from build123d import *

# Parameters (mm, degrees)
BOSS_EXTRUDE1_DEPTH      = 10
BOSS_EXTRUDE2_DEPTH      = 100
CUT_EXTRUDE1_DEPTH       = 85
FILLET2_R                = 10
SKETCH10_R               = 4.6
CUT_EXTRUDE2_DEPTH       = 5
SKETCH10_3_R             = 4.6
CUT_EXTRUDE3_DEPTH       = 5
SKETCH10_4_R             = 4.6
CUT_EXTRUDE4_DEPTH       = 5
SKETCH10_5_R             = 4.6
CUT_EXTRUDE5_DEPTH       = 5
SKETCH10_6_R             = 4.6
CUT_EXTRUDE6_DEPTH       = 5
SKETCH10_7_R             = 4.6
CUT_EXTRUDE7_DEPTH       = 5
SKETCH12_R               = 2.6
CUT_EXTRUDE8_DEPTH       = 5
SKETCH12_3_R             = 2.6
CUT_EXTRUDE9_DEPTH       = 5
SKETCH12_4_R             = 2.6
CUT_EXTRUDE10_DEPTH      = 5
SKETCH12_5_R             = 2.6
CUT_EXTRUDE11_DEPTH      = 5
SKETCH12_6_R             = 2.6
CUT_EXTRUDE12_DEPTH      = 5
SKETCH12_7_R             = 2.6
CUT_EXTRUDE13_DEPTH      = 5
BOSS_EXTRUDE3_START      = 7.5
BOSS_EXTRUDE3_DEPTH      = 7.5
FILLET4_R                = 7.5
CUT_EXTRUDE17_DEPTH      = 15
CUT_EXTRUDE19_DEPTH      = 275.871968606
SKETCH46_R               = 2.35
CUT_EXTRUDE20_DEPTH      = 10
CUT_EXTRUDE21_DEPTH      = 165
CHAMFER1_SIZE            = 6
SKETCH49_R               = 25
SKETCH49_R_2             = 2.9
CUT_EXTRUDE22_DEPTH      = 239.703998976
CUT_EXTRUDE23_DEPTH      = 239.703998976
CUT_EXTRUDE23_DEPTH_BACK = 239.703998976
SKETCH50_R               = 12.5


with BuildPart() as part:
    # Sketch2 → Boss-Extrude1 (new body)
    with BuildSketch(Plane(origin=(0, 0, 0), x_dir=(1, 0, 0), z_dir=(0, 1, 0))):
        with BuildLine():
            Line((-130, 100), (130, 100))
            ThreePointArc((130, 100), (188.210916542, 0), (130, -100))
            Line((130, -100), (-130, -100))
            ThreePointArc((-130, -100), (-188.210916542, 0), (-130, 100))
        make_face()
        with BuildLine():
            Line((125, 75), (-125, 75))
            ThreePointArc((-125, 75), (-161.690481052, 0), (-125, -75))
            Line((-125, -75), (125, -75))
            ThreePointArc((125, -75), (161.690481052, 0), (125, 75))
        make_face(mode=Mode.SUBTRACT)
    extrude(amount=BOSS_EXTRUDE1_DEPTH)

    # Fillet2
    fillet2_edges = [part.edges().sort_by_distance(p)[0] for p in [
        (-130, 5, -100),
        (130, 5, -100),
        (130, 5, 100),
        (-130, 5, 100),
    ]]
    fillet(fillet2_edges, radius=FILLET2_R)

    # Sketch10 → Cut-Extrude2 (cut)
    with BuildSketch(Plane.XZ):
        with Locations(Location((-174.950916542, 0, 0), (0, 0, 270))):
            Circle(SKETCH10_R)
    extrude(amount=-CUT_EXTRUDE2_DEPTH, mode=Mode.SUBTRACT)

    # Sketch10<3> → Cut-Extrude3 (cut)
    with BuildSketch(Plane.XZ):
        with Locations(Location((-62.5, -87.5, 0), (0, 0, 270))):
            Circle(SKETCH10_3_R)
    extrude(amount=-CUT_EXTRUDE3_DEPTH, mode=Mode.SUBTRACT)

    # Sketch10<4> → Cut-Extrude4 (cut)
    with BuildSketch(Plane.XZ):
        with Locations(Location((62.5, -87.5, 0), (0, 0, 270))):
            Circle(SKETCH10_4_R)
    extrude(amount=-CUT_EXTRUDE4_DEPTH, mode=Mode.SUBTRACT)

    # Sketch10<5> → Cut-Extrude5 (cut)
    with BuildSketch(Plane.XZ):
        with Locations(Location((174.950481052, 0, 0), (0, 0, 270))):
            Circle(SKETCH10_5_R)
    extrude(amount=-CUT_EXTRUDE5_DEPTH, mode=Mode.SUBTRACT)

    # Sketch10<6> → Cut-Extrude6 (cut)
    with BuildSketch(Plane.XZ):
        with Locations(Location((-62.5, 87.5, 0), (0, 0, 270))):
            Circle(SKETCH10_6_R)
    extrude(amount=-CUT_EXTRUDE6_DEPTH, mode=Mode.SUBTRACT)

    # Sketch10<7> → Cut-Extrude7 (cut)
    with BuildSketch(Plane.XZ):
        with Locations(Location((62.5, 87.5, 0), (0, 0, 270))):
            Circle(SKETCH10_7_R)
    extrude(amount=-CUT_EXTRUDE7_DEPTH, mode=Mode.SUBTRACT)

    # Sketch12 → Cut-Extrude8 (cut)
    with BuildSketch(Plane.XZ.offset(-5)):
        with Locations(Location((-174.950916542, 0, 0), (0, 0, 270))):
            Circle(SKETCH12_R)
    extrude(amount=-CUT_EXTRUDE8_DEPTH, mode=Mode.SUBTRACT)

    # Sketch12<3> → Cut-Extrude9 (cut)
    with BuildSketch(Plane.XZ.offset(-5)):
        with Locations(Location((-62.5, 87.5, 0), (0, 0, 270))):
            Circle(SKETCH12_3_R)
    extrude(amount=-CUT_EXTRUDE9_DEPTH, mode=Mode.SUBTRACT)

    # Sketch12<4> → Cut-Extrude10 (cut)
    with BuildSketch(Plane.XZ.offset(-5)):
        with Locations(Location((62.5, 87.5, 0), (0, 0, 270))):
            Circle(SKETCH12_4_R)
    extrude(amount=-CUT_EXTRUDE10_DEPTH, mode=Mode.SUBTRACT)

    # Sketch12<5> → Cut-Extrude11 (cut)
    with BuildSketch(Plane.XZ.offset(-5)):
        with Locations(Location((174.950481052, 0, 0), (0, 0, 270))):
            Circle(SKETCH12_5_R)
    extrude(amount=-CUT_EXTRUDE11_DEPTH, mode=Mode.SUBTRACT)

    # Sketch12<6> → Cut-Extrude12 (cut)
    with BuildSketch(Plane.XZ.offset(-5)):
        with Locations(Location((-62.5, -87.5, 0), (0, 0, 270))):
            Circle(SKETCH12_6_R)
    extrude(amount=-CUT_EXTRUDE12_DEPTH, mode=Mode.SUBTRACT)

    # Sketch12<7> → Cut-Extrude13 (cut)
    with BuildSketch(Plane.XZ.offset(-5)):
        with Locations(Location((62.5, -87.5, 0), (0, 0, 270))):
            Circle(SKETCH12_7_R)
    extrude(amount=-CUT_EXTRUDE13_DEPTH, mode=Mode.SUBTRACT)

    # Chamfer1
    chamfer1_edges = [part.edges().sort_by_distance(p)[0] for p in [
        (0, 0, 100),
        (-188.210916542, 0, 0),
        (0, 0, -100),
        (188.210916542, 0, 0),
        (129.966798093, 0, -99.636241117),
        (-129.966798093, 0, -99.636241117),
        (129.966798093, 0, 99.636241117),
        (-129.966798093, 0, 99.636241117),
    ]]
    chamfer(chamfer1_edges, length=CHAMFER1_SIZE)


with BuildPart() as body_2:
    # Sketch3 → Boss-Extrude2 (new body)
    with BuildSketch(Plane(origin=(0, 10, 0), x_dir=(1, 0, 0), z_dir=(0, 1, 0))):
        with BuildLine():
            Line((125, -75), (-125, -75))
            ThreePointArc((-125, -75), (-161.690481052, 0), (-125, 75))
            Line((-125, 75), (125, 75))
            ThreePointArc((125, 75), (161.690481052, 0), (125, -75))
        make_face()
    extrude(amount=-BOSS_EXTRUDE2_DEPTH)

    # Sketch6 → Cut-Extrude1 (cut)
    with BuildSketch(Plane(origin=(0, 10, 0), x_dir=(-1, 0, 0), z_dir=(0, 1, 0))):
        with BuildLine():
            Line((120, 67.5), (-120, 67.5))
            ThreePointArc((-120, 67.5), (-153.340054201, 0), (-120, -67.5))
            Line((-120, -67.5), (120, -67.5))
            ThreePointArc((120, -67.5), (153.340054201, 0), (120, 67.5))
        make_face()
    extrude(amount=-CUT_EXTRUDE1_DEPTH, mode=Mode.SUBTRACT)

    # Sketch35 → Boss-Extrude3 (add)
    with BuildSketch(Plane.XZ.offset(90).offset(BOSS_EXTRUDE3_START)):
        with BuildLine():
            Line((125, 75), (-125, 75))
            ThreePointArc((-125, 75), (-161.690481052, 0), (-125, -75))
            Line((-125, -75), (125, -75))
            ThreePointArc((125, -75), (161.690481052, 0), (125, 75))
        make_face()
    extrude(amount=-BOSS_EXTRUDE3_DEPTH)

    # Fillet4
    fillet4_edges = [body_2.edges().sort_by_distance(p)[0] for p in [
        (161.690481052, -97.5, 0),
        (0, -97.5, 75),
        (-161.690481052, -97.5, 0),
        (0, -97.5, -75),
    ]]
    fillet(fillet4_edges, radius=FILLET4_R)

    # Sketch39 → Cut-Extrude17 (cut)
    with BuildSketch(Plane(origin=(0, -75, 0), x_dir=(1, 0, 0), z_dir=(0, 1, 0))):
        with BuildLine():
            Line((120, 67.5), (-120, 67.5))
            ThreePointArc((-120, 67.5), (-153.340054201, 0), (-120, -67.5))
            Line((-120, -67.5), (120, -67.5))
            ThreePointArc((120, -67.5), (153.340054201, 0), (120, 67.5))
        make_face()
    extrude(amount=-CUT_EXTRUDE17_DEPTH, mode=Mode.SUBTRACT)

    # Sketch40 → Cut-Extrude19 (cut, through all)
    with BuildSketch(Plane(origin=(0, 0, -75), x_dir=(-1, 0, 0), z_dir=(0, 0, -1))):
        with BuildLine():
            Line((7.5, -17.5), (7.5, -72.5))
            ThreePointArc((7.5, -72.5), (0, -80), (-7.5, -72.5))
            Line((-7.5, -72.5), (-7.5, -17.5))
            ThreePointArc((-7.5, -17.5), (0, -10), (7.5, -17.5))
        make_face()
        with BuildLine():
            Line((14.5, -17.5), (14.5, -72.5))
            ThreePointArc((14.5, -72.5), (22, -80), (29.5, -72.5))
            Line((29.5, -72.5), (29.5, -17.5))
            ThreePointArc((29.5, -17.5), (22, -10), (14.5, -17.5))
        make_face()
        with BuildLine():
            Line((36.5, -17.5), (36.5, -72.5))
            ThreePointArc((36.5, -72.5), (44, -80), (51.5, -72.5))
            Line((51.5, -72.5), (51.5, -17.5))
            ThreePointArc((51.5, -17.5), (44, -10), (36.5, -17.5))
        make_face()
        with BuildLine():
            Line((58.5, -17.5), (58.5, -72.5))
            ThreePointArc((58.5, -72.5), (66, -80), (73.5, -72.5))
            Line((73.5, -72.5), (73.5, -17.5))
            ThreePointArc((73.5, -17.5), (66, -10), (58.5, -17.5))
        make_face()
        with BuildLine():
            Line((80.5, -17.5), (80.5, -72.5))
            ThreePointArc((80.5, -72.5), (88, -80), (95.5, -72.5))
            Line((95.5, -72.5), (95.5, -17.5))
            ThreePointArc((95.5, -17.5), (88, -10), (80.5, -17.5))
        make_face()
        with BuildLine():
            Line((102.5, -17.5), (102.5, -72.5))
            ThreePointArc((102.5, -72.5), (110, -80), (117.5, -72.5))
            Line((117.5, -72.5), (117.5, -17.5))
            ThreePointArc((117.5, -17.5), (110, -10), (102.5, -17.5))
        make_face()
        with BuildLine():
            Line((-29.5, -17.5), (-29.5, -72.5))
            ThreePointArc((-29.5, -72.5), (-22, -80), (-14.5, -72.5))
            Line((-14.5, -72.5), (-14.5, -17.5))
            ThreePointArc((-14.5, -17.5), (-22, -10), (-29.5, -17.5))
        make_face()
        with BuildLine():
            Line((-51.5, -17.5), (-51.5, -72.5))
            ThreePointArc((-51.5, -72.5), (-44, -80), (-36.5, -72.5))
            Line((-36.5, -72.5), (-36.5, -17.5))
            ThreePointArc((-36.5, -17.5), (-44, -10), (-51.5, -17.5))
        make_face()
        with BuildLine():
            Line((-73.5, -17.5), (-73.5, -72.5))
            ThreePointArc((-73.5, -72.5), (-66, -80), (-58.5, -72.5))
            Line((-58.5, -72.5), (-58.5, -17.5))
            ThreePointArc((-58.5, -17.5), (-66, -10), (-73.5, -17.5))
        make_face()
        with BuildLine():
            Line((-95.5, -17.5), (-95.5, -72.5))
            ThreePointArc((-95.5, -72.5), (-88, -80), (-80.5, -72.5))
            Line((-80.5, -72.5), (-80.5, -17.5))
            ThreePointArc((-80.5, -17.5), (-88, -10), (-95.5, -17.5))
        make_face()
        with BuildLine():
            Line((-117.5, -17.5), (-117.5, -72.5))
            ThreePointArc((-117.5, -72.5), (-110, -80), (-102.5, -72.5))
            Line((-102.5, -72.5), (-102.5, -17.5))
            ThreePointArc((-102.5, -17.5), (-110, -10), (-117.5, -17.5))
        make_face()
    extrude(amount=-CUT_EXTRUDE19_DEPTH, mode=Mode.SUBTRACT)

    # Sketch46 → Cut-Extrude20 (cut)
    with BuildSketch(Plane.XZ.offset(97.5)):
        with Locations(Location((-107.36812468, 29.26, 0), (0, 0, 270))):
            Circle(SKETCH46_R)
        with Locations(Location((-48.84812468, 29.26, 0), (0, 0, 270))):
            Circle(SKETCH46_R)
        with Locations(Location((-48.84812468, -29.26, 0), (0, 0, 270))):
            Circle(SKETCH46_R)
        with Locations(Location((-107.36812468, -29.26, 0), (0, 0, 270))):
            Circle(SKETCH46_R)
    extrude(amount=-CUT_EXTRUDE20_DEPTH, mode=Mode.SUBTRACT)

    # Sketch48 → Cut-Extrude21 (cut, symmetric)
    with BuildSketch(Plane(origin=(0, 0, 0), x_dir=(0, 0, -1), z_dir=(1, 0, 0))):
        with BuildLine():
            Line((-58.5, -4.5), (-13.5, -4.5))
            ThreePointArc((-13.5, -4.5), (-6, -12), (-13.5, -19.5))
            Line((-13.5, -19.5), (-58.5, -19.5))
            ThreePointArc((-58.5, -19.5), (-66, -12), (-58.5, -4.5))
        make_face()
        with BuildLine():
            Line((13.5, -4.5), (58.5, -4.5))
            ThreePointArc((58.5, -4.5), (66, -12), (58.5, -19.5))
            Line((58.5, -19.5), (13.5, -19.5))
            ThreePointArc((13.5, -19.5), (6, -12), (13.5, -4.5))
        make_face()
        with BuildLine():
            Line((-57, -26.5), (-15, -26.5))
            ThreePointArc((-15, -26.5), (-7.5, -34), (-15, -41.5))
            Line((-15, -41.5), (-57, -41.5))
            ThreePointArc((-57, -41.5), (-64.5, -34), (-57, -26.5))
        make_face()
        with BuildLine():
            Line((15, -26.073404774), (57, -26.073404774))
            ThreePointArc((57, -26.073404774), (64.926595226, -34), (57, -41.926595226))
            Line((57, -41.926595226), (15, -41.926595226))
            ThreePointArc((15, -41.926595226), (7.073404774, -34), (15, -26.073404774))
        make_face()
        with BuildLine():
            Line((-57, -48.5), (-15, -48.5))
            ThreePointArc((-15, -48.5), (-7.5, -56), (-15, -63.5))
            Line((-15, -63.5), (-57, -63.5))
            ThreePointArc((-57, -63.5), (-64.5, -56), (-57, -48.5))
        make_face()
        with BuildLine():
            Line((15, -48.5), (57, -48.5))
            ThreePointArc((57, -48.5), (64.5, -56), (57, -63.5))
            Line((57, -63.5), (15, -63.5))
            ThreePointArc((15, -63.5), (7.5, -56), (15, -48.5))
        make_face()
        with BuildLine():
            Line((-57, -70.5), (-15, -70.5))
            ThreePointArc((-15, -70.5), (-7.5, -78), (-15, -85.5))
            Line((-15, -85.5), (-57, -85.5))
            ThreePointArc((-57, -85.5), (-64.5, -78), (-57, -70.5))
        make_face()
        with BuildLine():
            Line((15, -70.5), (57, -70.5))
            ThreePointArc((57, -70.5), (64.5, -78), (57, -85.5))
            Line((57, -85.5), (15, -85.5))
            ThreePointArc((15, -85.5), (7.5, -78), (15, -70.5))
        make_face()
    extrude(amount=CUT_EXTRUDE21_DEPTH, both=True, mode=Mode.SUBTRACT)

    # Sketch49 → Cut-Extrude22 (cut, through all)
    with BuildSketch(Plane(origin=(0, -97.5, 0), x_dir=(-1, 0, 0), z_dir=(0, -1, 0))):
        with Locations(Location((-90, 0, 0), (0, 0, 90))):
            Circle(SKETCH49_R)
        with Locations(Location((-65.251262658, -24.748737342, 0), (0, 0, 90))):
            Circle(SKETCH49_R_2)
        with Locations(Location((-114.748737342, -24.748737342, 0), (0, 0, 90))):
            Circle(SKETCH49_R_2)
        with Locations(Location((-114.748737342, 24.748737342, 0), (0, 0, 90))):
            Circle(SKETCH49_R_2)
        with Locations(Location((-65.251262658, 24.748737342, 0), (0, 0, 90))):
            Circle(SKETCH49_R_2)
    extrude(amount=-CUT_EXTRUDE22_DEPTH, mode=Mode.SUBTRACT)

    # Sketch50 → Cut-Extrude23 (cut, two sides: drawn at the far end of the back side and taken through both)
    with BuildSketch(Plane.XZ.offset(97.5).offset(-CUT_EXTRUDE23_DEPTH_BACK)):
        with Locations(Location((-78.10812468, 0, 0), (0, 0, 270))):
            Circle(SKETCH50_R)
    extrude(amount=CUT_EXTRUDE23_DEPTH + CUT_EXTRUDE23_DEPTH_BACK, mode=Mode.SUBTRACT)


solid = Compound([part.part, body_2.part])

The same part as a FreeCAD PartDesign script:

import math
import FreeCAD as App
import Part
import Sketcher
from FreeCAD import Vector
Q = App.Units.Quantity


def edges_at(feature, points):
    """Names of the edges that pass closest to the given points."""
    edges = feature.Shape.Edges
    near = lambda p: min(range(len(edges)), key=lambda i: edges[i].distToShape(Part.Vertex(*p))[0])
    return sorted({f"Edge{near(p) + 1}" for p in points})

doc = App.newDocument("Part")
params = doc.addObject("Spreadsheet::Sheet", "Params")
for row, (alias, value) in enumerate([
    ("sketch1_radius", "115 mm"),
    ("sketch1_radius2", "95 mm"),
    ("sketch1_width", "260 mm"),
    ("sketch1_width2", "250 mm"),
    ("pad1_length", "10 mm"),
    ("fillet_radius", "10 mm"),
    ("sketch2_diameter", "9.2 mm"),
    ("pocket1_length", "5 mm"),
    ("sketch3_diameter", "9.2 mm"),
    ("pocket2_length", "5 mm"),
    ("sketch4_diameter", "9.2 mm"),
    ("pocket3_length", "5 mm"),
    ("sketch5_diameter", "9.2 mm"),
    ("pocket4_length", "5 mm"),
    ("sketch6_diameter", "9.2 mm"),
    ("pocket5_length", "5 mm"),
    ("sketch7_diameter", "9.2 mm"),
    ("pocket6_length", "5 mm"),
    ("sketch8_diameter", "5.2 mm"),
    ("pocket7_length", "5 mm"),
    ("sketch9_diameter", "5.2 mm"),
    ("pocket8_length", "5 mm"),
    ("sketch10_diameter", "5.2 mm"),
    ("pocket9_length", "5 mm"),
    ("sketch11_diameter", "5.2 mm"),
    ("pocket10_length", "5 mm"),
    ("sketch12_diameter", "5.2 mm"),
    ("pocket11_length", "5 mm"),
    ("sketch13_diameter", "5.2 mm"),
    ("pocket12_length", "5 mm"),
    ("chamfer_size", "6 mm"),
    ("sketch14_radius", "95 mm"),
    ("sketch14_width", "250 mm"),
    ("pad2_length", "100 mm"),
    ("sketch15_radius", "85 mm"),
    ("sketch15_width", "240 mm"),
    ("pocket13_length", "85 mm"),
    ("sketch16_radius", "95 mm"),
    ("sketch16_width", "250 mm"),
    ("pad3_length", "7.5 mm"),
    ("fillet2_radius", "7.5 mm"),
    ("sketch17_radius", "85 mm"),
    ("sketch17_width", "240 mm"),
    ("pocket14_length", "15 mm"),
    ("sketch18_radius", "7.5 mm"),
    ("sketch18_height", "55 mm"),
    ("sketch19_diameter", "4.7 mm"),
    ("pocket16_length", "10 mm"),
    ("sketch20_radius", "7.5 mm"),
    ("sketch20_height", "45 mm"),
    ("sketch20_height2", "42 mm"),
    ("pocket17_length", "330 mm"),
    ("sketch21_diameter", "50 mm"),
    ("sketch21_diameter2", "5.8 mm"),
    ("sketch22_diameter", "25 mm"),
], start=1):
    params.set(f"A{row}", alias)
    params.set(f"B{row}", "=" + value)
    params.setAlias(f"B{row}", alias)

body = doc.addObject("PartDesign::Body", "Body")

# Sketch on XZ plane
sketch1 = body.newObject("Sketcher::SketchObject", "Sketch")
sketch1.AttachmentSupport = (doc.getObject("XZ_Plane"), [""])
sketch1.MapMode = "FlatFace"
sketch1.addGeometry([
    Part.LineSegment(Vector(130, -100, 0), Vector(-130, -100, 0)),  # 0
    Part.ArcOfCircle(Part.Circle(Vector(-73, 0, 0), Vector(0, 0, 1), 115), math.radians(120), math.radians(240)),  # 1
    Part.LineSegment(Vector(-130, 100, 0), Vector(130, 100, 0)),  # 2
    Part.ArcOfCircle(Part.Circle(Vector(73, 0, 0), Vector(0, 0, 1), 115), math.radians(-60), math.radians(60)),  # 3
    Part.ArcOfCircle(Part.Circle(Vector(67, 0, 0), Vector(0, 0, 1), 95), math.radians(-52), math.radians(52)),  # 4
    Part.LineSegment(Vector(125, 75, 0), Vector(-125, 75, 0)),  # 5
    Part.ArcOfCircle(Part.Circle(Vector(-67, 0, 0), Vector(0, 0, 1), 95), math.radians(128), math.radians(232)),  # 6
    Part.LineSegment(Vector(-125, -75, 0), Vector(125, -75, 0)),  # 7
], False)
sketch1.addConstraint([
    Sketcher.Constraint("Coincident", 0, 2, 1, 2),
    Sketcher.Constraint("Coincident", 1, 1, 2, 1),
    Sketcher.Constraint("Coincident", 2, 2, 3, 2),
    Sketcher.Constraint("Coincident", 3, 1, 0, 1),
    Sketcher.Constraint("Coincident", 4, 2, 5, 1),
    Sketcher.Constraint("Coincident", 5, 2, 6, 1),
    Sketcher.Constraint("Coincident", 6, 2, 7, 1),
    Sketcher.Constraint("Coincident", 7, 2, 4, 1),
    Sketcher.Constraint("Horizontal", 0),
    Sketcher.Constraint("Horizontal", 2),
    Sketcher.Constraint("Horizontal", 5),
    Sketcher.Constraint("Horizontal", 7),
    Sketcher.Constraint("Equal", 1, 3),
    Sketcher.Constraint("Equal", 4, 6),
    Sketcher.Constraint("Symmetric", 1, 3, 3, 3, -1, 1),
    Sketcher.Constraint("Symmetric", 4, 3, 6, 3, -1, 1),
    Sketcher.Constraint("Symmetric", 0, 2, 1, 1, -1),
    Sketcher.Constraint("Symmetric", 5, 2, 6, 2, -1),
    Sketcher.Constraint("Radius", 1, Q("115 mm")),
    Sketcher.Constraint("Radius", 4, Q("95 mm")),
    Sketcher.Constraint("DistanceX", 0, 2, 0, 1, Q("260 mm")),
    Sketcher.Constraint("DistanceX", 5, 2, 5, 1, Q("250 mm")),
    Sketcher.Constraint("DistanceY", 0, 2, -1, 1, Q("100 mm")),
    Sketcher.Constraint("DistanceY", -1, 1, 4, 2, Q("75 mm")),
])
sketch1.setExpression("Constraints[18]", "Params.sketch1_radius")
sketch1.setExpression("Constraints[19]", "Params.sketch1_radius2")
sketch1.setExpression("Constraints[20]", "Params.sketch1_width")
sketch1.setExpression("Constraints[21]", "Params.sketch1_width2")
pad1 = body.newObject("PartDesign::Pad", "Pad")
pad1.Profile = sketch1
pad1.setExpression("Length", "Params.pad1_length")
pad1.Reversed = True
doc.recompute()

fillet = body.newObject("PartDesign::Fillet", "Fillet")
fillet.Base = (pad1, edges_at(pad1, [
    (-130, 5, -100),
    (130, 5, -100),
    (130, 5, 100),
    (-130, 5, 100),
]))
fillet.setExpression("Radius", "Params.fillet_radius")

# Sketch on XZ plane
sketch2 = body.newObject("Sketcher::SketchObject", "Sketch001")
sketch2.AttachmentSupport = (doc.getObject("XZ_Plane"), [""])
sketch2.MapMode = "FlatFace"
sketch2.addGeometry(Part.Circle(Vector(-175, 0, 0), Vector(0, 0, 1), 4.6), False)
sketch2.addConstraint([
    Sketcher.Constraint("PointOnObject", 0, 3, -1),
    Sketcher.Constraint("Diameter", 0, Q("9.2 mm")),
    Sketcher.Constraint("DistanceX", 0, 3, -1, 1, Q("174.950917 mm")),
])
sketch2.setExpression("Constraints[1]", "Params.sketch2_diameter")
pocket1 = body.newObject("PartDesign::Pocket", "Pocket")
pocket1.Profile = sketch2
pocket1.setExpression("Length", "Params.pocket1_length")

# Sketch on XZ plane
sketch3 = body.newObject("Sketcher::SketchObject", "Sketch002")
sketch3.AttachmentSupport = (doc.getObject("XZ_Plane"), [""])
sketch3.MapMode = "FlatFace"
sketch3.addGeometry(Part.Circle(Vector(-62.5, -87.5, 0), Vector(0, 0, 1), 4.6), False)
sketch3.addConstraint([
    Sketcher.Constraint("Diameter", 0, Q("9.2 mm")),
    Sketcher.Constraint("DistanceX", 0, 3, -1, 1, Q("62.5 mm")),
    Sketcher.Constraint("DistanceY", 0, 3, -1, 1, Q("87.5 mm")),
])
sketch3.setExpression("Constraints[0]", "Params.sketch3_diameter")
pocket2 = body.newObject("PartDesign::Pocket", "Pocket001")
pocket2.Profile = sketch3
pocket2.setExpression("Length", "Params.pocket2_length")

# Sketch on XZ plane
sketch4 = body.newObject("Sketcher::SketchObject", "Sketch003")
sketch4.AttachmentSupport = (doc.getObject("XZ_Plane"), [""])
sketch4.MapMode = "FlatFace"
sketch4.addGeometry(Part.Circle(Vector(62.5, -87.5, 0), Vector(0, 0, 1), 4.6), False)
sketch4.addConstraint([
    Sketcher.Constraint("Diameter", 0, Q("9.2 mm")),
    Sketcher.Constraint("DistanceX", -1, 1, 0, 3, Q("62.5 mm")),
    Sketcher.Constraint("DistanceY", 0, 3, -1, 1, Q("87.5 mm")),
])
sketch4.setExpression("Constraints[0]", "Params.sketch4_diameter")
pocket3 = body.newObject("PartDesign::Pocket", "Pocket002")
pocket3.Profile = sketch4
pocket3.setExpression("Length", "Params.pocket3_length")

# Sketch on XZ plane
sketch5 = body.newObject("Sketcher::SketchObject", "Sketch004")
sketch5.AttachmentSupport = (doc.getObject("XZ_Plane"), [""])
sketch5.MapMode = "FlatFace"
sketch5.addGeometry(Part.Circle(Vector(175, 0, 0), Vector(0, 0, 1), 4.6), False)
sketch5.addConstraint([
    Sketcher.Constraint("PointOnObject", 0, 3, -1),
    Sketcher.Constraint("Diameter", 0, Q("9.2 mm")),
    Sketcher.Constraint("DistanceX", -1, 1, 0, 3, Q("174.950481 mm")),
])
sketch5.setExpression("Constraints[1]", "Params.sketch5_diameter")
pocket4 = body.newObject("PartDesign::Pocket", "Pocket003")
pocket4.Profile = sketch5
pocket4.setExpression("Length", "Params.pocket4_length")

# Sketch on XZ plane
sketch6 = body.newObject("Sketcher::SketchObject", "Sketch005")
sketch6.AttachmentSupport = (doc.getObject("XZ_Plane"), [""])
sketch6.MapMode = "FlatFace"
sketch6.addGeometry(Part.Circle(Vector(-62.5, 87.5, 0), Vector(0, 0, 1), 4.6), False)
sketch6.addConstraint([
    Sketcher.Constraint("Diameter", 0, Q("9.2 mm")),
    Sketcher.Constraint("DistanceX", 0, 3, -1, 1, Q("62.5 mm")),
    Sketcher.Constraint("DistanceY", -1, 1, 0, 3, Q("87.5 mm")),
])
sketch6.setExpression("Constraints[0]", "Params.sketch6_diameter")
pocket5 = body.newObject("PartDesign::Pocket", "Pocket004")
pocket5.Profile = sketch6
pocket5.setExpression("Length", "Params.pocket5_length")

# Sketch on XZ plane
sketch7 = body.newObject("Sketcher::SketchObject", "Sketch006")
sketch7.AttachmentSupport = (doc.getObject("XZ_Plane"), [""])
sketch7.MapMode = "FlatFace"
sketch7.addGeometry(Part.Circle(Vector(62.5, 87.5, 0), Vector(0, 0, 1), 4.6), False)
sketch7.addConstraint([
    Sketcher.Constraint("Diameter", 0, Q("9.2 mm")),
    Sketcher.Constraint("DistanceX", -1, 1, 0, 3, Q("62.5 mm")),
    Sketcher.Constraint("DistanceY", -1, 1, 0, 3, Q("87.5 mm")),
])
sketch7.setExpression("Constraints[0]", "Params.sketch7_diameter")
pocket6 = body.newObject("PartDesign::Pocket", "Pocket005")
pocket6.Profile = sketch7
pocket6.setExpression("Length", "Params.pocket6_length")

# Sketch on XZ plane
sketch8 = body.newObject("Sketcher::SketchObject", "Sketch007")
sketch8.AttachmentSupport = (doc.getObject("XZ_Plane"), [""])
sketch8.MapMode = "FlatFace"
sketch8.AttachmentOffset = App.Placement(Vector(0, 0, -5), App.Rotation())
sketch8.addGeometry(Part.Circle(Vector(-175, 0, 0), Vector(0, 0, 1), 2.6), False)
sketch8.addConstraint([
    Sketcher.Constraint("PointOnObject", 0, 3, -1),
    Sketcher.Constraint("Diameter", 0, Q("5.2 mm")),
    Sketcher.Constraint("DistanceX", 0, 3, -1, 1, Q("174.950917 mm")),
])
sketch8.setExpression("Constraints[1]", "Params.sketch8_diameter")
pocket7 = body.newObject("PartDesign::Pocket", "Pocket006")
pocket7.Profile = sketch8
pocket7.setExpression("Length", "Params.pocket7_length")

# Sketch on XZ plane
sketch9 = body.newObject("Sketcher::SketchObject", "Sketch008")
sketch9.AttachmentSupport = (doc.getObject("XZ_Plane"), [""])
sketch9.MapMode = "FlatFace"
sketch9.AttachmentOffset = App.Placement(Vector(0, 0, -5), App.Rotation())
sketch9.addGeometry(Part.Circle(Vector(-62.5, 87.5, 0), Vector(0, 0, 1), 2.6), False)
sketch9.addConstraint([
    Sketcher.Constraint("Diameter", 0, Q("5.2 mm")),
    Sketcher.Constraint("DistanceX", 0, 3, -1, 1, Q("62.5 mm")),
    Sketcher.Constraint("DistanceY", -1, 1, 0, 3, Q("87.5 mm")),
])
sketch9.setExpression("Constraints[0]", "Params.sketch9_diameter")
pocket8 = body.newObject("PartDesign::Pocket", "Pocket007")
pocket8.Profile = sketch9
pocket8.setExpression("Length", "Params.pocket8_length")

# Sketch on XZ plane
sketch10 = body.newObject("Sketcher::SketchObject", "Sketch009")
sketch10.AttachmentSupport = (doc.getObject("XZ_Plane"), [""])
sketch10.MapMode = "FlatFace"
sketch10.AttachmentOffset = App.Placement(Vector(0, 0, -5), App.Rotation())
sketch10.addGeometry(Part.Circle(Vector(62.5, 87.5, 0), Vector(0, 0, 1), 2.6), False)
sketch10.addConstraint([
    Sketcher.Constraint("Diameter", 0, Q("5.2 mm")),
    Sketcher.Constraint("DistanceX", -1, 1, 0, 3, Q("62.5 mm")),
    Sketcher.Constraint("DistanceY", -1, 1, 0, 3, Q("87.5 mm")),
])
sketch10.setExpression("Constraints[0]", "Params.sketch10_diameter")
pocket9 = body.newObject("PartDesign::Pocket", "Pocket008")
pocket9.Profile = sketch10
pocket9.setExpression("Length", "Params.pocket9_length")

# Sketch on XZ plane
sketch11 = body.newObject("Sketcher::SketchObject", "Sketch010")
sketch11.AttachmentSupport = (doc.getObject("XZ_Plane"), [""])
sketch11.MapMode = "FlatFace"
sketch11.AttachmentOffset = App.Placement(Vector(0, 0, -5), App.Rotation())
sketch11.addGeometry(Part.Circle(Vector(175, 0, 0), Vector(0, 0, 1), 2.6), False)
sketch11.addConstraint([
    Sketcher.Constraint("PointOnObject", 0, 3, -1),
    Sketcher.Constraint("Diameter", 0, Q("5.2 mm")),
    Sketcher.Constraint("DistanceX", -1, 1, 0, 3, Q("174.950481 mm")),
])
sketch11.setExpression("Constraints[1]", "Params.sketch11_diameter")
pocket10 = body.newObject("PartDesign::Pocket", "Pocket009")
pocket10.Profile = sketch11
pocket10.setExpression("Length", "Params.pocket10_length")

# Sketch on XZ plane
sketch12 = body.newObject("Sketcher::SketchObject", "Sketch011")
sketch12.AttachmentSupport = (doc.getObject("XZ_Plane"), [""])
sketch12.MapMode = "FlatFace"
sketch12.AttachmentOffset = App.Placement(Vector(0, 0, -5), App.Rotation())
sketch12.addGeometry(Part.Circle(Vector(-62.5, -87.5, 0), Vector(0, 0, 1), 2.6), False)
sketch12.addConstraint([
    Sketcher.Constraint("Diameter", 0, Q("5.2 mm")),
    Sketcher.Constraint("DistanceX", 0, 3, -1, 1, Q("62.5 mm")),
    Sketcher.Constraint("DistanceY", 0, 3, -1, 1, Q("87.5 mm")),
])
sketch12.setExpression("Constraints[0]", "Params.sketch12_diameter")
pocket11 = body.newObject("PartDesign::Pocket", "Pocket010")
pocket11.Profile = sketch12
pocket11.setExpression("Length", "Params.pocket11_length")

# Sketch on XZ plane
sketch13 = body.newObject("Sketcher::SketchObject", "Sketch012")
sketch13.AttachmentSupport = (doc.getObject("XZ_Plane"), [""])
sketch13.MapMode = "FlatFace"
sketch13.AttachmentOffset = App.Placement(Vector(0, 0, -5), App.Rotation())
sketch13.addGeometry(Part.Circle(Vector(62.5, -87.5, 0), Vector(0, 0, 1), 2.6), False)
sketch13.addConstraint([
    Sketcher.Constraint("Diameter", 0, Q("5.2 mm")),
    Sketcher.Constraint("DistanceX", -1, 1, 0, 3, Q("62.5 mm")),
    Sketcher.Constraint("DistanceY", 0, 3, -1, 1, Q("87.5 mm")),
])
sketch13.setExpression("Constraints[0]", "Params.sketch13_diameter")
pocket12 = body.newObject("PartDesign::Pocket", "Pocket011")
pocket12.Profile = sketch13
pocket12.setExpression("Length", "Params.pocket12_length")
doc.recompute()

chamfer = body.newObject("PartDesign::Chamfer", "Chamfer")
chamfer.Base = (pocket12, edges_at(pocket12, [
    (0, 0, 100),
    (-188.211, 0, 0),
    (0, 0, -100),
    (188.211, 0, 0),
    (129.967, 0, -99.636),
    (-129.967, 0, -99.636),
    (129.967, 0, 99.636),
    (-129.967, 0, 99.636),
]))
chamfer.setExpression("Size", "Params.chamfer_size")
body2 = doc.addObject("PartDesign::Body", "Body001")

# Sketch on XZ plane
sketch14 = body2.newObject("Sketcher::SketchObject", "Sketch013")
sketch14.AttachmentSupport = (doc.getObject("XZ_Plane001"), [""])
sketch14.MapMode = "FlatFace"
sketch14.AttachmentOffset = App.Placement(Vector(0, 0, -10), App.Rotation())
sketch14.addGeometry([
    Part.LineSegment(Vector(-125, 75, 0), Vector(125, 75, 0)),
    Part.ArcOfCircle(Part.Circle(Vector(67, 0, 0), Vector(0, 0, 1), 95), math.radians(-52), math.radians(52)),
    Part.LineSegment(Vector(125, -75, 0), Vector(-125, -75, 0)),
    Part.ArcOfCircle(Part.Circle(Vector(-67, 0, 0), Vector(0, 0, 1), 95), math.radians(128), math.radians(232)),
], False)
sketch14.addConstraint([
    Sketcher.Constraint("Coincident", 0, 2, 1, 2),
    Sketcher.Constraint("Coincident", 1, 1, 2, 1),
    Sketcher.Constraint("Coincident", 2, 2, 3, 2),
    Sketcher.Constraint("Coincident", 3, 1, 0, 1),
    Sketcher.Constraint("Horizontal", 0),
    Sketcher.Constraint("Horizontal", 2),
    Sketcher.Constraint("Equal", 1, 3),
    Sketcher.Constraint("Symmetric", 1, 3, 3, 3, -1, 1),
    Sketcher.Constraint("Symmetric", 0, 2, 1, 1, -1),
    Sketcher.Constraint("Radius", 1, Q("95 mm")),
    Sketcher.Constraint("DistanceX", 0, 1, 0, 2, Q("250 mm")),
    Sketcher.Constraint("DistanceY", -1, 1, 0, 2, Q("75 mm")),
])
sketch14.setExpression("Constraints[9]", "Params.sketch14_radius")
sketch14.setExpression("Constraints[10]", "Params.sketch14_width")
pad2 = body2.newObject("PartDesign::Pad", "Pad001")
pad2.Profile = sketch14
pad2.setExpression("Length", "Params.pad2_length")

# Sketch on XZ plane
sketch15 = body2.newObject("Sketcher::SketchObject", "Sketch014")
sketch15.AttachmentSupport = (doc.getObject("XZ_Plane001"), [""])
sketch15.MapMode = "FlatFace"
sketch15.AttachmentOffset = App.Placement(Vector(0, 0, -10), App.Rotation())
sketch15.addGeometry([
    Part.LineSegment(Vector(-120, 68, 0), Vector(120, 68, 0)),
    Part.ArcOfCircle(Part.Circle(Vector(68, 0, 0), Vector(0, 0, 1), 85), math.radians(-53), math.radians(53)),
    Part.LineSegment(Vector(120, -68, 0), Vector(-120, -68, 0)),
    Part.ArcOfCircle(Part.Circle(Vector(-68, 0, 0), Vector(0, 0, 1), 85), math.radians(127), math.radians(233)),
], False)
sketch15.addConstraint([
    Sketcher.Constraint("Coincident", 0, 2, 1, 2),
    Sketcher.Constraint("Coincident", 1, 1, 2, 1),
    Sketcher.Constraint("Coincident", 2, 2, 3, 2),
    Sketcher.Constraint("Coincident", 3, 1, 0, 1),
    Sketcher.Constraint("Horizontal", 0),
    Sketcher.Constraint("Horizontal", 2),
    Sketcher.Constraint("Equal", 1, 3),
    Sketcher.Constraint("Symmetric", 1, 3, 3, 3, -1, 1),
    Sketcher.Constraint("Symmetric", 0, 2, 1, 1, -1),
    Sketcher.Constraint("Radius", 1, Q("85 mm")),
    Sketcher.Constraint("DistanceX", 0, 1, 0, 2, Q("240 mm")),
    Sketcher.Constraint("DistanceY", 1, 1, 0, 2, Q("135 mm")),
])
sketch15.setExpression("Constraints[9]", "Params.sketch15_radius")
sketch15.setExpression("Constraints[10]", "Params.sketch15_width")
pocket13 = body2.newObject("PartDesign::Pocket", "Pocket012")
pocket13.Profile = sketch15
pocket13.setExpression("Length", "Params.pocket13_length")
pocket13.Reversed = True

# Sketch on XZ plane
sketch16 = body2.newObject("Sketcher::SketchObject", "Sketch015")
sketch16.AttachmentSupport = (doc.getObject("XZ_Plane001"), [""])
sketch16.MapMode = "FlatFace"
sketch16.AttachmentOffset = App.Placement(Vector(0, 0, 97.5), App.Rotation())
sketch16.addGeometry([
    Part.LineSegment(Vector(125, 75, 0), Vector(-125, 75, 0)),
    Part.ArcOfCircle(Part.Circle(Vector(-67, 0, 0), Vector(0, 0, 1), 95), math.radians(128), math.radians(232)),
    Part.LineSegment(Vector(-125, -75, 0), Vector(125, -75, 0)),
    Part.ArcOfCircle(Part.Circle(Vector(67, 0, 0), Vector(0, 0, 1), 95), math.radians(-52), math.radians(52)),
], False)
sketch16.addConstraint([
    Sketcher.Constraint("Coincident", 0, 2, 1, 1),
    Sketcher.Constraint("Coincident", 1, 2, 2, 1),
    Sketcher.Constraint("Coincident", 2, 2, 3, 1),
    Sketcher.Constraint("Coincident", 3, 2, 0, 1),
    Sketcher.Constraint("Horizontal", 0),
    Sketcher.Constraint("Horizontal", 2),
    Sketcher.Constraint("Equal", 1, 3),
    Sketcher.Constraint("Symmetric", 1, 3, 3, 3, -1, 1),
    Sketcher.Constraint("Symmetric", 0, 2, 1, 2, -1),
    Sketcher.Constraint("Radius", 1, Q("95 mm")),
    Sketcher.Constraint("DistanceX", 0, 2, 0, 1, Q("250 mm")),
    Sketcher.Constraint("DistanceY", -1, 1, 0, 2, Q("75 mm")),
])
sketch16.setExpression("Constraints[9]", "Params.sketch16_radius")
sketch16.setExpression("Constraints[10]", "Params.sketch16_width")
pad3 = body2.newObject("PartDesign::Pad", "Pad002")
pad3.Profile = sketch16
pad3.setExpression("Length", "Params.pad3_length")
pad3.Reversed = True
doc.recompute()

fillet2 = body2.newObject("PartDesign::Fillet", "Fillet001")
fillet2.Base = (pad3, edges_at(pad3, [
    (161.69, -97.5, 0),
    (0, -97.5, 75),
    (-161.69, -97.5, 0),
    (0, -97.5, -75),
]))
fillet2.setExpression("Radius", "Params.fillet2_radius")

# Sketch on XZ plane
sketch17 = body2.newObject("Sketcher::SketchObject", "Sketch016")
sketch17.AttachmentSupport = (doc.getObject("XZ_Plane001"), [""])
sketch17.MapMode = "FlatFace"
sketch17.AttachmentOffset = App.Placement(Vector(0, 0, 75), App.Rotation())
sketch17.addGeometry([
    Part.LineSegment(Vector(120, -68, 0), Vector(-120, -68, 0)),
    Part.ArcOfCircle(Part.Circle(Vector(-68, 0, 0), Vector(0, 0, 1), 85), math.radians(127), math.radians(233)),
    Part.LineSegment(Vector(-120, 68, 0), Vector(120, 68, 0)),
    Part.ArcOfCircle(Part.Circle(Vector(68, 0, 0), Vector(0, 0, 1), 85), math.radians(-53), math.radians(53)),
], False)
sketch17.addConstraint([
    Sketcher.Constraint("Coincident", 0, 2, 1, 2),
    Sketcher.Constraint("Coincident", 1, 1, 2, 1),
    Sketcher.Constraint("Coincident", 2, 2, 3, 2),
    Sketcher.Constraint("Coincident", 3, 1, 0, 1),
    Sketcher.Constraint("Horizontal", 0),
    Sketcher.Constraint("Horizontal", 2),
    Sketcher.Constraint("Equal", 1, 3),
    Sketcher.Constraint("Symmetric", 1, 3, 3, 3, -1, 1),
    Sketcher.Constraint("Symmetric", 0, 2, 1, 1, -1),
    Sketcher.Constraint("Radius", 1, Q("85 mm")),
    Sketcher.Constraint("DistanceX", 0, 2, 0, 1, Q("240 mm")),
    Sketcher.Constraint("DistanceY", 0, 2, 1, 1, Q("135 mm")),
])
sketch17.setExpression("Constraints[9]", "Params.sketch17_radius")
sketch17.setExpression("Constraints[10]", "Params.sketch17_width")
pocket14 = body2.newObject("PartDesign::Pocket", "Pocket013")
pocket14.Profile = sketch17
pocket14.setExpression("Length", "Params.pocket14_length")
pocket14.Reversed = True

# Sketch on XY plane
sketch18 = body2.newObject("Sketcher::SketchObject", "Sketch017")
sketch18.AttachmentSupport = (doc.getObject("XY_Plane001"), [""])
sketch18.MapMode = "FlatFace"
sketch18.AttachmentOffset = App.Placement(Vector(0, 0, -75), App.Rotation())
sketch18.addGeometry([
    Part.LineSegment(Vector(-8, -72, 0), Vector(-8, -18, 0)),  # 0
    Part.ArcOfCircle(Part.Circle(Vector(0, -18, 0), Vector(0, 0, 1), 8), math.radians(0), math.radians(180)),  # 1
    Part.LineSegment(Vector(8, -18, 0), Vector(8, -72, 0)),  # 2
    Part.ArcOfCircle(Part.Circle(Vector(0, -72, 0), Vector(0, 0, 1), 8), math.radians(180), math.radians(360)),  # 3
    Part.LineSegment(Vector(-14, -18, 0), Vector(-14, -72, 0)),  # 4
    Part.ArcOfCircle(Part.Circle(Vector(-22, -72, 0), Vector(0, 0, 1), 8), math.radians(180), math.radians(360)),  # 5
    Part.LineSegment(Vector(-30, -72, 0), Vector(-30, -18, 0)),  # 6
    Part.ArcOfCircle(Part.Circle(Vector(-22, -18, 0), Vector(0, 0, 1), 8), math.radians(0), math.radians(180)),  # 7
    Part.LineSegment(Vector(-36, -18, 0), Vector(-36, -72, 0)),  # 8
    Part.ArcOfCircle(Part.Circle(Vector(-44, -72, 0), Vector(0, 0, 1), 8), math.radians(180), math.radians(360)),  # 9
    Part.LineSegment(Vector(-52, -72, 0), Vector(-52, -18, 0)),  # 10
    Part.ArcOfCircle(Part.Circle(Vector(-44, -18, 0), Vector(0, 0, 1), 8), math.radians(0), math.radians(180)),  # 11
    Part.LineSegment(Vector(-58, -18, 0), Vector(-58, -72, 0)),  # 12
    Part.ArcOfCircle(Part.Circle(Vector(-66, -72, 0), Vector(0, 0, 1), 8), math.radians(180), math.radians(360)),  # 13
    Part.LineSegment(Vector(-74, -72, 0), Vector(-74, -18, 0)),  # 14
    Part.ArcOfCircle(Part.Circle(Vector(-66, -18, 0), Vector(0, 0, 1), 8), math.radians(0), math.radians(180)),  # 15
    Part.LineSegment(Vector(-80, -18, 0), Vector(-80, -72, 0)),  # 16
    Part.ArcOfCircle(Part.Circle(Vector(-88, -72, 0), Vector(0, 0, 1), 8), math.radians(180), math.radians(360)),  # 17
    Part.LineSegment(Vector(-96, -72, 0), Vector(-96, -18, 0)),  # 18
    Part.ArcOfCircle(Part.Circle(Vector(-88, -18, 0), Vector(0, 0, 1), 8), math.radians(0), math.radians(180)),  # 19
    Part.LineSegment(Vector(-102, -18, 0), Vector(-102, -72, 0)),  # 20
    Part.ArcOfCircle(Part.Circle(Vector(-110, -72, 0), Vector(0, 0, 1), 8), math.radians(180), math.radians(360)),  # 21
    Part.LineSegment(Vector(-118, -72, 0), Vector(-118, -18, 0)),  # 22
    Part.ArcOfCircle(Part.Circle(Vector(-110, -18, 0), Vector(0, 0, 1), 8), math.radians(0), math.radians(180)),  # 23
    Part.LineSegment(Vector(30, -18, 0), Vector(30, -72, 0)),  # 24
    Part.ArcOfCircle(Part.Circle(Vector(22, -72, 0), Vector(0, 0, 1), 8), math.radians(180), math.radians(360)),  # 25
    Part.LineSegment(Vector(14, -72, 0), Vector(14, -18, 0)),  # 26
    Part.ArcOfCircle(Part.Circle(Vector(22, -18, 0), Vector(0, 0, 1), 8), math.radians(0), math.radians(180)),  # 27
    Part.LineSegment(Vector(52, -18, 0), Vector(52, -72, 0)),  # 28
    Part.ArcOfCircle(Part.Circle(Vector(44, -72, 0), Vector(0, 0, 1), 8), math.radians(180), math.radians(360)),  # 29
    Part.LineSegment(Vector(36, -72, 0), Vector(36, -18, 0)),  # 30
    Part.ArcOfCircle(Part.Circle(Vector(44, -18, 0), Vector(0, 0, 1), 8), math.radians(0), math.radians(180)),  # 31
    Part.LineSegment(Vector(74, -18, 0), Vector(74, -72, 0)),  # 32
    Part.ArcOfCircle(Part.Circle(Vector(66, -72, 0), Vector(0, 0, 1), 8), math.radians(180), math.radians(360)),  # 33
    Part.LineSegment(Vector(58, -72, 0), Vector(58, -18, 0)),  # 34
    Part.ArcOfCircle(Part.Circle(Vector(66, -18, 0), Vector(0, 0, 1), 8), math.radians(0), math.radians(180)),  # 35
    Part.LineSegment(Vector(96, -18, 0), Vector(96, -72, 0)),  # 36
    Part.ArcOfCircle(Part.Circle(Vector(88, -72, 0), Vector(0, 0, 1), 8), math.radians(180), math.radians(360)),  # 37
    Part.LineSegment(Vector(80, -72, 0), Vector(80, -18, 0)),  # 38
    Part.ArcOfCircle(Part.Circle(Vector(88, -18, 0), Vector(0, 0, 1), 8), math.radians(0), math.radians(180)),  # 39
    Part.LineSegment(Vector(118, -18, 0), Vector(118, -72, 0)),  # 40
    Part.ArcOfCircle(Part.Circle(Vector(110, -72, 0), Vector(0, 0, 1), 8), math.radians(180), math.radians(360)),  # 41
    Part.LineSegment(Vector(102, -72, 0), Vector(102, -18, 0)),  # 42
    Part.ArcOfCircle(Part.Circle(Vector(110, -18, 0), Vector(0, 0, 1), 8), math.radians(0), math.radians(180)),  # 43
], False)
sketch18.addConstraint([
    Sketcher.Constraint("Tangent", 0, 2, 1, 2),
    Sketcher.Constraint("Tangent", 1, 1, 2, 1),
    Sketcher.Constraint("Tangent", 2, 2, 3, 2),
    Sketcher.Constraint("Tangent", 3, 1, 0, 1),
    Sketcher.Constraint("Tangent", 4, 2, 5, 2),
    Sketcher.Constraint("Tangent", 5, 1, 6, 1),
    Sketcher.Constraint("Tangent", 6, 2, 7, 2),
    Sketcher.Constraint("Tangent", 7, 1, 4, 1),
    Sketcher.Constraint("Tangent", 8, 2, 9, 2),
    Sketcher.Constraint("Tangent", 9, 1, 10, 1),
    Sketcher.Constraint("Tangent", 10, 2, 11, 2),
    Sketcher.Constraint("Tangent", 11, 1, 8, 1),
    Sketcher.Constraint("Tangent", 12, 2, 13, 2),
    Sketcher.Constraint("Tangent", 13, 1, 14, 1),
    Sketcher.Constraint("Tangent", 14, 2, 15, 2),
    Sketcher.Constraint("Tangent", 15, 1, 12, 1),
    Sketcher.Constraint("Tangent", 16, 2, 17, 2),
    Sketcher.Constraint("Tangent", 17, 1, 18, 1),
    Sketcher.Constraint("Tangent", 18, 2, 19, 2),
    Sketcher.Constraint("Tangent", 19, 1, 16, 1),
    Sketcher.Constraint("Tangent", 20, 2, 21, 2),
    Sketcher.Constraint("Tangent", 21, 1, 22, 1),
    Sketcher.Constraint("Tangent", 22, 2, 23, 2),
    Sketcher.Constraint("Tangent", 23, 1, 20, 1),
    Sketcher.Constraint("Tangent", 24, 2, 25, 2),
    Sketcher.Constraint("Tangent", 25, 1, 26, 1),
    Sketcher.Constraint("Tangent", 26, 2, 27, 2),
    Sketcher.Constraint("Tangent", 27, 1, 24, 1),
    Sketcher.Constraint("Tangent", 28, 2, 29, 2),
    Sketcher.Constraint("Tangent", 29, 1, 30, 1),
    Sketcher.Constraint("Tangent", 30, 2, 31, 2),
    Sketcher.Constraint("Tangent", 31, 1, 28, 1),
    Sketcher.Constraint("Tangent", 32, 2, 33, 2),
    Sketcher.Constraint("Tangent", 33, 1, 34, 1),
    Sketcher.Constraint("Tangent", 34, 2, 35, 2),
    Sketcher.Constraint("Tangent", 35, 1, 32, 1),
    Sketcher.Constraint("Tangent", 36, 2, 37, 2),
    Sketcher.Constraint("Tangent", 37, 1, 38, 1),
    Sketcher.Constraint("Tangent", 38, 2, 39, 2),
    Sketcher.Constraint("Tangent", 39, 1, 36, 1),
    Sketcher.Constraint("Tangent", 40, 2, 41, 2),
    Sketcher.Constraint("Tangent", 41, 1, 42, 1),
    Sketcher.Constraint("Tangent", 42, 2, 43, 2),
    Sketcher.Constraint("Tangent", 43, 1, 40, 1),
    Sketcher.Constraint("Vertical", 0),
    Sketcher.Constraint("Vertical", 2),
    Sketcher.Constraint("Vertical", 4),
    Sketcher.Constraint("Vertical", 6),
    Sketcher.Constraint("Vertical", 8),
    Sketcher.Constraint("Vertical", 10),
    Sketcher.Constraint("Vertical", 12),
    Sketcher.Constraint("Vertical", 14),
    Sketcher.Constraint("Vertical", 16),
    Sketcher.Constraint("Vertical", 18),
    Sketcher.Constraint("Vertical", 20),
    Sketcher.Constraint("Vertical", 22),
    Sketcher.Constraint("Vertical", 24),
    Sketcher.Constraint("Vertical", 26),
    Sketcher.Constraint("Vertical", 28),
    Sketcher.Constraint("Vertical", 30),
    Sketcher.Constraint("Vertical", 32),
    Sketcher.Constraint("Vertical", 34),
    Sketcher.Constraint("Vertical", 36),
    Sketcher.Constraint("Vertical", 38),
    Sketcher.Constraint("Vertical", 40),
    Sketcher.Constraint("Vertical", 42),
    Sketcher.Constraint("Equal", 3, 5),
    Sketcher.Constraint("Equal", 7, 9),
    Sketcher.Constraint("Equal", 11, 13),
    Sketcher.Constraint("Equal", 15, 17),
    Sketcher.Constraint("Equal", 19, 21),
    Sketcher.Constraint("Equal", 23, 25),
    Sketcher.Constraint("Equal", 27, 29),
    Sketcher.Constraint("Equal", 31, 33),
    Sketcher.Constraint("Equal", 35, 37),
    Sketcher.Constraint("Equal", 39, 41),
    Sketcher.Constraint("Symmetric", 5, 3, 25, 3, -2),
    Sketcher.Constraint("Symmetric", 9, 3, 29, 3, -2),
    Sketcher.Constraint("Symmetric", 13, 3, 33, 3, -2),
    Sketcher.Constraint("Symmetric", 17, 3, 37, 3, -2),
    Sketcher.Constraint("Symmetric", 21, 3, 41, 3, -2),
    Sketcher.Constraint("PointOnObject", 1, 3, -2),
    Sketcher.Constraint("Horizontal", 3, 3, 5, 3),
    Sketcher.Constraint("Horizontal", 1, 3, 7, 3),
    Sketcher.Constraint("Horizontal", 5, 3, 9, 3),
    Sketcher.Constraint("Horizontal", 7, 3, 11, 3),
    Sketcher.Constraint("Horizontal", 9, 3, 13, 3),
    Sketcher.Constraint("Horizontal", 11, 3, 15, 3),
    Sketcher.Constraint("Horizontal", 13, 3, 17, 3),
    Sketcher.Constraint("Horizontal", 15, 3, 19, 3),
    Sketcher.Constraint("Horizontal", 17, 3, 21, 3),
    Sketcher.Constraint("Horizontal", 19, 3, 23, 3),
    Sketcher.Constraint("Horizontal", 23, 3, 27, 3),
    Sketcher.Constraint("Horizontal", 27, 3, 31, 3),
    Sketcher.Constraint("Horizontal", 31, 3, 35, 3),
    Sketcher.Constraint("Horizontal", 35, 3, 39, 3),
    Sketcher.Constraint("Horizontal", 39, 3, 43, 3),
    Sketcher.Constraint("Radius", 1, Q("7.5 mm")),
    Sketcher.Constraint("DistanceY", 0, 1, 0, 2, Q("55 mm")),
    Sketcher.Constraint("DistanceX", 5, 3, -1, 1, Q("22 mm")),
    Sketcher.Constraint("DistanceX", 9, 3, -1, 1, Q("44 mm")),
    Sketcher.Constraint("DistanceX", 13, 3, -1, 1, Q("66 mm")),
    Sketcher.Constraint("DistanceX", 17, 3, -1, 1, Q("88 mm")),
    Sketcher.Constraint("DistanceX", 21, 3, -1, 1, Q("110 mm")),
    Sketcher.Constraint("DistanceY", 1, 3, -1, 1, Q("17.5 mm")),
])
sketch18.setExpression("Constraints[97]", "Params.sketch18_radius")
sketch18.setExpression("Constraints[98]", "Params.sketch18_height")
pocket15 = body2.newObject("PartDesign::Pocket", "Pocket014")
pocket15.Profile = sketch18
pocket15.Type = "ThroughAll"
pocket15.Reversed = True

# Sketch on XZ plane
sketch19 = body2.newObject("Sketcher::SketchObject", "Sketch018")
sketch19.AttachmentSupport = (doc.getObject("XZ_Plane001"), [""])
sketch19.MapMode = "FlatFace"
sketch19.AttachmentOffset = App.Placement(Vector(0, 0, 97.5), App.Rotation())
sketch19.addGeometry([
    Part.Circle(Vector(-107.4, 29.3, 0), Vector(0, 0, 1), 2.4),
    Part.Circle(Vector(-48.8, 29.3, 0), Vector(0, 0, 1), 2.4),
    Part.Circle(Vector(-48.8, -29.3, 0), Vector(0, 0, 1), 2.4),
    Part.Circle(Vector(-107.4, -29.3, 0), Vector(0, 0, 1), 2.4),
], False)
sketch19.addConstraint([
    Sketcher.Constraint("Equal", 0, 1),
    Sketcher.Constraint("Equal", 1, 2),
    Sketcher.Constraint("Equal", 2, 3),
    Sketcher.Constraint("Symmetric", 1, 3, 2, 3, -1),
    Sketcher.Constraint("Symmetric", 0, 3, 3, 3, -1),
    Sketcher.Constraint("Horizontal", 0, 3, 1, 3),
    Sketcher.Constraint("Diameter", 0, Q("4.7 mm")),
    Sketcher.Constraint("DistanceY", -1, 1, 0, 3, Q("29.26 mm")),
    Sketcher.Constraint("DistanceX", 0, 3, 1, 3, Q("58.52 mm")),
    Sketcher.Constraint("DistanceX", 0, 3, -1, 1, Q("107.368125 mm")),
])
sketch19.setExpression("Constraints[6]", "Params.sketch19_diameter")
pocket16 = body2.newObject("PartDesign::Pocket", "Pocket015")
pocket16.Profile = sketch19
pocket16.setExpression("Length", "Params.pocket16_length")

# Sketch on YZ plane
sketch20 = body2.newObject("Sketcher::SketchObject", "Sketch019")
sketch20.AttachmentSupport = (doc.getObject("YZ_Plane001"), [""])
sketch20.MapMode = "FlatFace"
sketch20.addGeometry([
    Part.LineSegment(Vector(-4, 14, 0), Vector(-4, 58, 0)),  # 0
    Part.ArcOfCircle(Part.Circle(Vector(-12, 58, 0), Vector(0, 0, 1), 8), math.radians(0), math.radians(180)),  # 1
    Part.LineSegment(Vector(-20, 58, 0), Vector(-20, 14, 0)),  # 2
    Part.ArcOfCircle(Part.Circle(Vector(-12, 14, 0), Vector(0, 0, 1), 8), math.radians(180), math.radians(360)),  # 3
    Part.LineSegment(Vector(-4, -58, 0), Vector(-4, -14, 0)),  # 4
    Part.ArcOfCircle(Part.Circle(Vector(-12, -14, 0), Vector(0, 0, 1), 8), math.radians(0), math.radians(180)),  # 5
    Part.LineSegment(Vector(-20, -14, 0), Vector(-20, -58, 0)),  # 6
    Part.ArcOfCircle(Part.Circle(Vector(-12, -58, 0), Vector(0, 0, 1), 8), math.radians(180), math.radians(360)),  # 7
    Part.LineSegment(Vector(-26, 15, 0), Vector(-26, 57, 0)),  # 8
    Part.ArcOfCircle(Part.Circle(Vector(-34, 57, 0), Vector(0, 0, 1), 8), math.radians(0), math.radians(180)),  # 9
    Part.LineSegment(Vector(-42, 57, 0), Vector(-42, 15, 0)),  # 10
    Part.ArcOfCircle(Part.Circle(Vector(-34, 15, 0), Vector(0, 0, 1), 8), math.radians(180), math.radians(360)),  # 11
    Part.LineSegment(Vector(-26, -57, 0), Vector(-26, -15, 0)),  # 12
    Part.ArcOfCircle(Part.Circle(Vector(-34, -15, 0), Vector(0, 0, 1), 8), math.radians(0), math.radians(180)),  # 13
    Part.LineSegment(Vector(-42, -15, 0), Vector(-42, -57, 0)),  # 14
    Part.ArcOfCircle(Part.Circle(Vector(-34, -57, 0), Vector(0, 0, 1), 8), math.radians(180), math.radians(360)),  # 15
    Part.LineSegment(Vector(-48, 15, 0), Vector(-48, 57, 0)),  # 16
    Part.ArcOfCircle(Part.Circle(Vector(-56, 57, 0), Vector(0, 0, 1), 8), math.radians(0), math.radians(180)),  # 17
    Part.LineSegment(Vector(-64, 57, 0), Vector(-64, 15, 0)),  # 18
    Part.ArcOfCircle(Part.Circle(Vector(-56, 15, 0), Vector(0, 0, 1), 8), math.radians(180), math.radians(360)),  # 19
    Part.LineSegment(Vector(-48, -57, 0), Vector(-48, -15, 0)),  # 20
    Part.ArcOfCircle(Part.Circle(Vector(-56, -15, 0), Vector(0, 0, 1), 8), math.radians(0), math.radians(180)),  # 21
    Part.LineSegment(Vector(-64, -15, 0), Vector(-64, -57, 0)),  # 22
    Part.ArcOfCircle(Part.Circle(Vector(-56, -57, 0), Vector(0, 0, 1), 8), math.radians(180), math.radians(360)),  # 23
    Part.LineSegment(Vector(-70, 15, 0), Vector(-70, 57, 0)),  # 24
    Part.ArcOfCircle(Part.Circle(Vector(-78, 57, 0), Vector(0, 0, 1), 8), math.radians(0), math.radians(180)),  # 25
    Part.LineSegment(Vector(-86, 57, 0), Vector(-86, 15, 0)),  # 26
    Part.ArcOfCircle(Part.Circle(Vector(-78, 15, 0), Vector(0, 0, 1), 8), math.radians(180), math.radians(360)),  # 27
    Part.LineSegment(Vector(-70, -57, 0), Vector(-70, -15, 0)),  # 28
    Part.ArcOfCircle(Part.Circle(Vector(-78, -15, 0), Vector(0, 0, 1), 8), math.radians(0), math.radians(180)),  # 29
    Part.LineSegment(Vector(-86, -15, 0), Vector(-86, -57, 0)),  # 30
    Part.ArcOfCircle(Part.Circle(Vector(-78, -57, 0), Vector(0, 0, 1), 8), math.radians(180), math.radians(360)),  # 31
], False)
sketch20.addConstraint([
    Sketcher.Constraint("Tangent", 0, 2, 1, 1),
    Sketcher.Constraint("Tangent", 1, 2, 2, 1),
    Sketcher.Constraint("Tangent", 2, 2, 3, 1),
    Sketcher.Constraint("Tangent", 3, 2, 0, 1),
    Sketcher.Constraint("Tangent", 4, 2, 5, 1),
    Sketcher.Constraint("Tangent", 5, 2, 6, 1),
    Sketcher.Constraint("Tangent", 6, 2, 7, 1),
    Sketcher.Constraint("Tangent", 7, 2, 4, 1),
    Sketcher.Constraint("Tangent", 8, 2, 9, 1),
    Sketcher.Constraint("Tangent", 9, 2, 10, 1),
    Sketcher.Constraint("Tangent", 10, 2, 11, 1),
    Sketcher.Constraint("Tangent", 11, 2, 8, 1),
    Sketcher.Constraint("Tangent", 12, 2, 13, 1),
    Sketcher.Constraint("Tangent", 13, 2, 14, 1),
    Sketcher.Constraint("Tangent", 14, 2, 15, 1),
    Sketcher.Constraint("Tangent", 15, 2, 12, 1),
    Sketcher.Constraint("Tangent", 16, 2, 17, 1),
    Sketcher.Constraint("Tangent", 17, 2, 18, 1),
    Sketcher.Constraint("Tangent", 18, 2, 19, 1),
    Sketcher.Constraint("Tangent", 19, 2, 16, 1),
    Sketcher.Constraint("Tangent", 20, 2, 21, 1),
    Sketcher.Constraint("Tangent", 21, 2, 22, 1),
    Sketcher.Constraint("Tangent", 22, 2, 23, 1),
    Sketcher.Constraint("Tangent", 23, 2, 20, 1),
    Sketcher.Constraint("Tangent", 24, 2, 25, 1),
    Sketcher.Constraint("Tangent", 25, 2, 26, 1),
    Sketcher.Constraint("Tangent", 26, 2, 27, 1),
    Sketcher.Constraint("Tangent", 27, 2, 24, 1),
    Sketcher.Constraint("Tangent", 28, 2, 29, 1),
    Sketcher.Constraint("Tangent", 29, 2, 30, 1),
    Sketcher.Constraint("Tangent", 30, 2, 31, 1),
    Sketcher.Constraint("Tangent", 31, 2, 28, 1),
    Sketcher.Constraint("Vertical", 0),
    Sketcher.Constraint("Vertical", 2),
    Sketcher.Constraint("Vertical", 4),
    Sketcher.Constraint("Vertical", 6),
    Sketcher.Constraint("Vertical", 8),
    Sketcher.Constraint("Vertical", 10),
    Sketcher.Constraint("Vertical", 12),
    Sketcher.Constraint("Vertical", 14),
    Sketcher.Constraint("Vertical", 16),
    Sketcher.Constraint("Vertical", 18),
    Sketcher.Constraint("Vertical", 20),
    Sketcher.Constraint("Vertical", 22),
    Sketcher.Constraint("Vertical", 24),
    Sketcher.Constraint("Vertical", 26),
    Sketcher.Constraint("Vertical", 28),
    Sketcher.Constraint("Vertical", 30),
    Sketcher.Constraint("Equal", 3, 5),
    Sketcher.Constraint("Equal", 7, 9),
    Sketcher.Constraint("Equal", 11, 17),
    Sketcher.Constraint("Equal", 19, 21),
    Sketcher.Constraint("Equal", 23, 25),
    Sketcher.Constraint("Equal", 27, 29),
    Sketcher.Constraint("Symmetric", 3, 3, 5, 3, -1),
    Sketcher.Constraint("Symmetric", 11, 3, 13, 3, -1),
    Sketcher.Constraint("Symmetric", 19, 3, 21, 3, -1),
    Sketcher.Constraint("Symmetric", 27, 3, 29, 3, -1),
    Sketcher.Constraint("Horizontal", 9, 3, 17, 3),
    Sketcher.Constraint("Horizontal", 11, 3, 19, 3),
    Sketcher.Constraint("Horizontal", 15, 3, 23, 3),
    Sketcher.Constraint("Horizontal", 17, 3, 25, 3),
    Sketcher.Constraint("Horizontal", 19, 3, 27, 3),
    Sketcher.Constraint("Horizontal", 23, 3, 31, 3),
    Sketcher.Constraint("Equal", 2, 4),
    Sketcher.Constraint("Equal", 10, 12),
    Sketcher.Constraint("Radius", 1, Q("7.5 mm")),
    Sketcher.Constraint("DistanceY", 0, 1, 0, 2, Q("45 mm")),
    Sketcher.Constraint("DistanceY", 8, 1, 8, 2, Q("42 mm")),
    Sketcher.Constraint("DistanceX", 1, 3, -1, 1, Q("12 mm")),
    Sketcher.Constraint("DistanceX", 9, 3, -1, 1, Q("34 mm")),
    Sketcher.Constraint("DistanceY", -1, 1, 9, 3, Q("57 mm")),
    Sketcher.Constraint("DistanceX", 17, 3, -1, 1, Q("56 mm")),
    Sketcher.Constraint("DistanceX", 25, 3, -1, 1, Q("78 mm")),
    Sketcher.Constraint("DistanceY", 5, 3, 3, 3, Q("27 mm")),
    Sketcher.Constraint("Radius", 13, Q("7.926595 mm")),
])
sketch20.setExpression("Constraints[66]", "Params.sketch20_radius")
sketch20.setExpression("Constraints[67]", "Params.sketch20_height")
sketch20.setExpression("Constraints[68]", "Params.sketch20_height2")
pocket17 = body2.newObject("PartDesign::Pocket", "Pocket016")
pocket17.Profile = sketch20
pocket17.setExpression("Length", "Params.pocket17_length")
pocket17.Midplane = True

# Sketch on XZ plane
sketch21 = body2.newObject("Sketcher::SketchObject", "Sketch020")
sketch21.AttachmentSupport = (doc.getObject("XZ_Plane001"), [""])
sketch21.MapMode = "FlatFace"
sketch21.AttachmentOffset = App.Placement(Vector(0, 0, 97.5), App.Rotation())
sketch21.addGeometry([
    Part.Circle(Vector(90, 0, 0), Vector(0, 0, 1), 25),  # 0
    Part.Circle(Vector(65.3, 24.7, 0), Vector(0, 0, 1), 2.9),  # 1
    Part.Circle(Vector(114.7, 24.7, 0), Vector(0, 0, 1), 2.9),  # 2
    Part.Circle(Vector(114.7, -24.7, 0), Vector(0, 0, 1), 2.9),  # 3
    Part.Circle(Vector(65.3, -24.7, 0), Vector(0, 0, 1), 2.9),  # 4
], False)
sketch21.addConstraint([
    Sketcher.Constraint("Equal", 1, 2),
    Sketcher.Constraint("Equal", 2, 3),
    Sketcher.Constraint("Equal", 3, 4),
    Sketcher.Constraint("Symmetric", 2, 3, 3, 3, -1),
    Sketcher.Constraint("Symmetric", 1, 3, 4, 3, -1),
    Sketcher.Constraint("PointOnObject", 0, 3, -1),
    Sketcher.Constraint("Horizontal", 1, 3, 2, 3),
    Sketcher.Constraint("Diameter", 0, Q("50 mm")),
    Sketcher.Constraint("Diameter", 1, Q("5.8 mm")),
    Sketcher.Constraint("DistanceX", -1, 1, 0, 3, Q("90 mm")),
    Sketcher.Constraint("DistanceX", -1, 1, 1, 3, Q("65.251263 mm")),
    Sketcher.Constraint("DistanceY", -1, 1, 1, 3, Q("24.748737 mm")),
    Sketcher.Constraint("DistanceX", -1, 1, 2, 3, Q("114.748737 mm")),
])
sketch21.setExpression("Constraints[7]", "Params.sketch21_diameter")
sketch21.setExpression("Constraints[8]", "Params.sketch21_diameter2")
pocket18 = body2.newObject("PartDesign::Pocket", "Pocket017")
pocket18.Profile = sketch21
pocket18.Type = "ThroughAll"

# Sketch on XZ plane
sketch22 = body2.newObject("Sketcher::SketchObject", "Sketch021")
sketch22.AttachmentSupport = (doc.getObject("XZ_Plane001"), [""])
sketch22.MapMode = "FlatFace"
sketch22.AttachmentOffset = App.Placement(Vector(0, 0, 97.5), App.Rotation())
sketch22.addGeometry(Part.Circle(Vector(-78, 0, 0), Vector(0, 0, 1), 12), False)
sketch22.addConstraint([
    Sketcher.Constraint("PointOnObject", 0, 3, -1),
    Sketcher.Constraint("Diameter", 0, Q("25 mm")),
    Sketcher.Constraint("DistanceX", 0, 3, -1, 1, Q("78.108125 mm")),
])
sketch22.setExpression("Constraints[1]", "Params.sketch22_diameter")
pocket19 = body2.newObject("PartDesign::Pocket", "Pocket018")
pocket19.Profile = sketch22
pocket19.Type = "ThroughAll"
pocket19.Midplane = True

doc.recompute()
